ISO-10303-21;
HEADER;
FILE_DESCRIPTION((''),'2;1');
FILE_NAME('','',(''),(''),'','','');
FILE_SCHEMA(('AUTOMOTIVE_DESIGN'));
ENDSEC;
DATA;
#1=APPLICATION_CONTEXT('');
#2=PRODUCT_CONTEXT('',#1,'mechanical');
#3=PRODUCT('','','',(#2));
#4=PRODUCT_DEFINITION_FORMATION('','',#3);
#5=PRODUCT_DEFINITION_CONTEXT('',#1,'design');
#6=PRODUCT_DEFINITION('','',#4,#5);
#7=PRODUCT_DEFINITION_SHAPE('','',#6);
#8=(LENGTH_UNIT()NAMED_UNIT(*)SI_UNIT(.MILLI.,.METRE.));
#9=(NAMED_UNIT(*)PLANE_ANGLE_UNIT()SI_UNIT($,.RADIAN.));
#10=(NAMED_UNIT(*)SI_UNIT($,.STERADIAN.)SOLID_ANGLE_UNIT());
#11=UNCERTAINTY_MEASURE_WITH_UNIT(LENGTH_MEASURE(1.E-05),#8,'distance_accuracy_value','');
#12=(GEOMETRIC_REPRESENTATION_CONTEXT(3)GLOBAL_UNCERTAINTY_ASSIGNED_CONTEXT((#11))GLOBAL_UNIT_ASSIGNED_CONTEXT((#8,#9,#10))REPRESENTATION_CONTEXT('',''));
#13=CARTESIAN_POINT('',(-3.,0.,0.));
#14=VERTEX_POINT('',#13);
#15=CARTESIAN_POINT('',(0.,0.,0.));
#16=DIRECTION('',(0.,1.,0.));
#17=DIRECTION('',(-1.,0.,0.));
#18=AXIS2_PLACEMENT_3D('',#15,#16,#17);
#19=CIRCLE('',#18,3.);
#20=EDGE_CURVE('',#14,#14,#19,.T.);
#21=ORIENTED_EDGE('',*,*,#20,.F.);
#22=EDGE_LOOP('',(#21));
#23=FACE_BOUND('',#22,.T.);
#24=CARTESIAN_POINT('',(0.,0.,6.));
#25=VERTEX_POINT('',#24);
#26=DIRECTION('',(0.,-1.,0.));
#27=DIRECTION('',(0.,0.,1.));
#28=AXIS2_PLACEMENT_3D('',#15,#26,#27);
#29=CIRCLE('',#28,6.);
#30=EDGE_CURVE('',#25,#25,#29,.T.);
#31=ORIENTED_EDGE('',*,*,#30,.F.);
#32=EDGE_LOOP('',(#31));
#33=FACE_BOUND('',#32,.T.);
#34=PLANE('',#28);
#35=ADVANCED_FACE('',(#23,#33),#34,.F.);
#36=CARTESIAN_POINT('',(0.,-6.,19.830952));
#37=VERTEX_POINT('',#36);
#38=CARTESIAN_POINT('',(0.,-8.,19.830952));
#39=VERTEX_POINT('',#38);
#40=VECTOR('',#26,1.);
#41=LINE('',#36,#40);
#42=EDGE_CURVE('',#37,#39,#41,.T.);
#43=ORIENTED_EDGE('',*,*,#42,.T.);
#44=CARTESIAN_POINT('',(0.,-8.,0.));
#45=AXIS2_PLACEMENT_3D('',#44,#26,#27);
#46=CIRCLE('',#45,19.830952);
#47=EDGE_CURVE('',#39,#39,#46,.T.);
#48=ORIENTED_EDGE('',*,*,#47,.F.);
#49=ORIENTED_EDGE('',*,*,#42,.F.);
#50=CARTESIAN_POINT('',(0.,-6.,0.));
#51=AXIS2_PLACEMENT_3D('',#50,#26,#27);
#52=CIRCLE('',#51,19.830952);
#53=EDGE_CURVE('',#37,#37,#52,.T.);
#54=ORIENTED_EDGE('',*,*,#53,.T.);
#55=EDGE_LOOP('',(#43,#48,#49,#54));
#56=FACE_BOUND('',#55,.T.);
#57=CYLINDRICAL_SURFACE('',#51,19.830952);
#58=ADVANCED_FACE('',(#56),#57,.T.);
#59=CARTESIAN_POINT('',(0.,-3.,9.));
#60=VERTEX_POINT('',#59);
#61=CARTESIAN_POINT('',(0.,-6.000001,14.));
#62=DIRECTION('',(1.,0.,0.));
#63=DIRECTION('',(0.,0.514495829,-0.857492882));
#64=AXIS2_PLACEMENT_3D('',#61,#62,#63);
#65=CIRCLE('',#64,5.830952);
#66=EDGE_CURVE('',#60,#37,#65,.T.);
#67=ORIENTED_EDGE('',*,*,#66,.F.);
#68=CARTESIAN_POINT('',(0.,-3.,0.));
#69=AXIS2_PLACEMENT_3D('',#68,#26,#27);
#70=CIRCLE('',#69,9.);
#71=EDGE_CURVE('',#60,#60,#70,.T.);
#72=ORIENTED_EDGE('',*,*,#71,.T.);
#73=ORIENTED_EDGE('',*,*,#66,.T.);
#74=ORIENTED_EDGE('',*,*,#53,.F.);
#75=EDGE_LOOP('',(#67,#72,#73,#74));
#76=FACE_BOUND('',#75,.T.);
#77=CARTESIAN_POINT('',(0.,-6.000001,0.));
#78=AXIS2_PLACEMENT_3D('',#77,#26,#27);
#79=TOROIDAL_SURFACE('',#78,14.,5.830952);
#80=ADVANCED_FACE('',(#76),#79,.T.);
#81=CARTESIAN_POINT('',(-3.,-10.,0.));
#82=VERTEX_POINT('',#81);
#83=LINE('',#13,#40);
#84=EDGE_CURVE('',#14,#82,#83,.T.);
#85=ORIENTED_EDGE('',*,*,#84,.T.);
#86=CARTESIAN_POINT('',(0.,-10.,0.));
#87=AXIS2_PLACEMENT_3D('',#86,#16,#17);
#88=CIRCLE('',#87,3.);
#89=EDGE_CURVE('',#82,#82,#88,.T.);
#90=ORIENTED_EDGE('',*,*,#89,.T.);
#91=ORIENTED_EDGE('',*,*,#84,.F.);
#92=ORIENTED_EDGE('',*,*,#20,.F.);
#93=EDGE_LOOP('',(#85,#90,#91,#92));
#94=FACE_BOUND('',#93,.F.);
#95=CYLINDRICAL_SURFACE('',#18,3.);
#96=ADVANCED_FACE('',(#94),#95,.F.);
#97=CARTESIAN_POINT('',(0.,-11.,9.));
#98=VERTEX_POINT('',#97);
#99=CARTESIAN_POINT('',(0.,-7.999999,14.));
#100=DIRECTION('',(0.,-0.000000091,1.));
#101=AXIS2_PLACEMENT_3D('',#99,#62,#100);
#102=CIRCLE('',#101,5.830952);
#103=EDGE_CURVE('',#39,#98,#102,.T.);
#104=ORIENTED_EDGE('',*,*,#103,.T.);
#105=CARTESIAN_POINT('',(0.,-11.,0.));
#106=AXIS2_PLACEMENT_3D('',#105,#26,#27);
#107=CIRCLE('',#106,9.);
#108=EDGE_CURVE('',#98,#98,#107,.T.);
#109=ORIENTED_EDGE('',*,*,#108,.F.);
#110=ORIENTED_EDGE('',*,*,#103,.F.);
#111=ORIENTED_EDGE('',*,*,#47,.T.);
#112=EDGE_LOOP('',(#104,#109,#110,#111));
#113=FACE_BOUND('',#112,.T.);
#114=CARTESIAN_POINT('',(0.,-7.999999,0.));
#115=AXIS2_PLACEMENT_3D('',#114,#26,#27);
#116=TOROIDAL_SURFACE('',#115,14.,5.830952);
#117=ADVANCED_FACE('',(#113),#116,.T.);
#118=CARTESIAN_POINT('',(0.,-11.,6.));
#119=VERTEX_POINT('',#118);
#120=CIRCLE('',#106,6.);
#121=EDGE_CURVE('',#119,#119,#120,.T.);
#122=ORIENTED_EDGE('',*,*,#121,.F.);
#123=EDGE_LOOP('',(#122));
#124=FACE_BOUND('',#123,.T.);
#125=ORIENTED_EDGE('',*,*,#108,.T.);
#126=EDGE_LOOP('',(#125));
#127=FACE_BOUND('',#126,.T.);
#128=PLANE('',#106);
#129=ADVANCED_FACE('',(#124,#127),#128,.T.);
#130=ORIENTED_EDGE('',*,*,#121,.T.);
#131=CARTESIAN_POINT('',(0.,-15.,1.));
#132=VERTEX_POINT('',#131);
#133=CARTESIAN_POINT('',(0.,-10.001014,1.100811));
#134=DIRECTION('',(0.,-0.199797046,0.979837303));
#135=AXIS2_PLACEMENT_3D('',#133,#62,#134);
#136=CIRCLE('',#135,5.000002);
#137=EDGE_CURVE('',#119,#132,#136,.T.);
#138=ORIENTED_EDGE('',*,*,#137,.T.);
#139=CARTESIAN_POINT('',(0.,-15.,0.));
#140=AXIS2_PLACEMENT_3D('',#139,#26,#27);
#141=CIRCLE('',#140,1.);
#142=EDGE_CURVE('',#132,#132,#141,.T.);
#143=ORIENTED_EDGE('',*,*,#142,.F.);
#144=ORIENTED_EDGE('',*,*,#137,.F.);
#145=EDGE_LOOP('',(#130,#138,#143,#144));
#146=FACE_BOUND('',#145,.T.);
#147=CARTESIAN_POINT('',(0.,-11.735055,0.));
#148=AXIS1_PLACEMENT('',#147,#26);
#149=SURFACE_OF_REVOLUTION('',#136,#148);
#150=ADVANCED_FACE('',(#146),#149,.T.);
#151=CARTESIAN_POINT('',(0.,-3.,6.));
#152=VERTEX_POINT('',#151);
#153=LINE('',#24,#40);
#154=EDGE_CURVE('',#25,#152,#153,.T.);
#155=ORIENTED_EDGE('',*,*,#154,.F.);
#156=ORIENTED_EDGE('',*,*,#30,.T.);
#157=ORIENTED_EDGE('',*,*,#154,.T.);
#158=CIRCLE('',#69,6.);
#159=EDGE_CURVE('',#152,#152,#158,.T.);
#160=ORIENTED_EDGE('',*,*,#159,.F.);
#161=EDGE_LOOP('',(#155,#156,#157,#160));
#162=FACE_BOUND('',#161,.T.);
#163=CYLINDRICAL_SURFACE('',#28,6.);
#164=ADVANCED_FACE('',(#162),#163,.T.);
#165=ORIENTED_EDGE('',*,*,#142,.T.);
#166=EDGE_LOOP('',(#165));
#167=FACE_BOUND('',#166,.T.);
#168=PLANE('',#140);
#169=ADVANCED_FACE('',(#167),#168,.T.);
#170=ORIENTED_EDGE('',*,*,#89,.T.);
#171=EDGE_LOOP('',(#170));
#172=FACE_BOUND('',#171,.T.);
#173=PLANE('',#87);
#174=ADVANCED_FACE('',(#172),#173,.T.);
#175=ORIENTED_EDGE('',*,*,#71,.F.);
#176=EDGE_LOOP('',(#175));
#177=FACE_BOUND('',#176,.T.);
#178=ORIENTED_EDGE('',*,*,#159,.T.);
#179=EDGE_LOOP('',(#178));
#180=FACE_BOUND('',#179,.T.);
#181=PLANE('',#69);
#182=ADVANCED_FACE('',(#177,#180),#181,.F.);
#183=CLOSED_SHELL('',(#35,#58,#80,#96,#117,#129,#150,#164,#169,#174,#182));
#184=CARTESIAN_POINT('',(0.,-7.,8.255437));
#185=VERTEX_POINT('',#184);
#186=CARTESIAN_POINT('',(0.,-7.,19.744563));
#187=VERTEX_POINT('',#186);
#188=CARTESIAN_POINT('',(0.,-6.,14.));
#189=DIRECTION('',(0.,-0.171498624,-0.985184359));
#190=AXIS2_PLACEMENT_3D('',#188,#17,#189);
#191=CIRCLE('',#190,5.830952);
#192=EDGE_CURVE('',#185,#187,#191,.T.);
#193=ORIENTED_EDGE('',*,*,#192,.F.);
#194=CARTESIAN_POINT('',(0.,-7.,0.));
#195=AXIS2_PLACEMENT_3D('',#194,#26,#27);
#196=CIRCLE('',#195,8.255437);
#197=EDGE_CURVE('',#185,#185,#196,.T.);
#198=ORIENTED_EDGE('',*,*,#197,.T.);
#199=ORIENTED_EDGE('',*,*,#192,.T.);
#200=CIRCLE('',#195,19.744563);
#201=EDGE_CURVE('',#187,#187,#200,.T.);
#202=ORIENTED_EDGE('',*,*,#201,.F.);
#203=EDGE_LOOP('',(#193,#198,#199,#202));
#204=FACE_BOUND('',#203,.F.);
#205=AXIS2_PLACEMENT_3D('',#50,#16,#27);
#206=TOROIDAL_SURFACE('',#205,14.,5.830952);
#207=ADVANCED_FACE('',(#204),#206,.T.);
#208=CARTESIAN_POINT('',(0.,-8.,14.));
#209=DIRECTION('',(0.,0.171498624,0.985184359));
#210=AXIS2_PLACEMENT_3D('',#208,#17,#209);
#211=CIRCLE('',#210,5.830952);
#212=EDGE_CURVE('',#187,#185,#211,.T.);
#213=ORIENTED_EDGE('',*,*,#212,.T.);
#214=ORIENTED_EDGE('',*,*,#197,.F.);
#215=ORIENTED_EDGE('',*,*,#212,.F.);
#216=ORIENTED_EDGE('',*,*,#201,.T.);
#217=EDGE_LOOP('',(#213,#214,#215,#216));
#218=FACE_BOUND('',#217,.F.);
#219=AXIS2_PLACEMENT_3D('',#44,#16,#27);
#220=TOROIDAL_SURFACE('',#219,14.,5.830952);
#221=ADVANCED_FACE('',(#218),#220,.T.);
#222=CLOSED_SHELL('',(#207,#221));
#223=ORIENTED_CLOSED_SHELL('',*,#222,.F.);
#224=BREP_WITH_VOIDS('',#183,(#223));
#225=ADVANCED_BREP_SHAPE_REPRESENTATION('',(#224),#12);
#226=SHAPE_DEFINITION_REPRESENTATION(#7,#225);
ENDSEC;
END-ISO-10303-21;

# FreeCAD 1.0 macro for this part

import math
import FreeCAD as App
import Part
import Sketcher
from FreeCAD import Vector
Q = App.Units.Quantity

doc = App.newDocument("Part")
body = doc.addObject("PartDesign::Body", "Body")

# Sketch on YZ plane
sketch1 = body.newObject("Sketcher::SketchObject", "Sketch")
sketch1.AttachmentSupport = (doc.getObject("YZ_Plane"), [""])
sketch1.MapMode = "FlatFace"
sketch1.addGeometry([
    Part.LineSegment(Vector(-15, 0, 0), Vector(0, 0, 0)),  # 0
    Part.LineSegment(Vector(0, 0, 0), Vector(0, 6, 0)),  # 1
    Part.LineSegment(Vector(0, 6, 0), Vector(-3, 6, 0)),  # 2
    Part.LineSegment(Vector(-3, 6, 0), Vector(-3, 9, 0)),  # 3
    Part.ArcOfCircle(Part.Circle(Vector(-6, 14, 0), Vector(0, 0, 1), 5.8), math.radians(-59), math.radians(90)),  # 4
    Part.LineSegment(Vector(-6, 19.8, 0), Vector(-8, 19.8, 0)),  # 5
    Part.ArcOfCircle(Part.Circle(Vector(-8, 14, 0), Vector(0, 0, 1), 5.8), math.radians(90), math.radians(239)),  # 6
    Part.LineSegment(Vector(-11, 9, 0), Vector(-11, 6, 0)),  # 7
    Part.ArcOfCircle(Part.Circle(Vector(-10, 1.1, 0), Vector(0, 0, 1), 5), math.radians(102), math.radians(181)),  # 8
    Part.LineSegment(Vector(-15, 1, 0), Vector(-15, 0, 0)),  # 9
    Part.ArcOfCircle(Part.Circle(Vector(-6, 14, 0), Vector(0, 0, 1), 5.8), math.radians(100), math.radians(260)),  # 10
    Part.ArcOfCircle(Part.Circle(Vector(-8, 14, 0), Vector(0, 0, 1), 5.8), math.radians(-80), math.radians(80)),  # 11
], False)
sketch1.addConstraint([
    Sketcher.Constraint("Coincident", 0, 2, 1, 1),
    Sketcher.Constraint("Coincident", 1, 2, 2, 1),
    Sketcher.Constraint("Coincident", 2, 2, 3, 1),
    Sketcher.Constraint("Coincident", 3, 2, 4, 1),
    Sketcher.Constraint("Tangent", 4, 2, 5, 1),
    Sketcher.Constraint("Tangent", 5, 2, 6, 1),
    Sketcher.Constraint("Coincident", 6, 2, 7, 1),
    Sketcher.Constraint("Coincident", 7, 2, 8, 1),
    Sketcher.Constraint("Coincident", 8, 2, 9, 1),
    Sketcher.Constraint("Coincident", 9, 2, 0, 1),
    Sketcher.Constraint("Coincident", 10, 1, 11, 2),
    Sketcher.Constraint("Coincident", 11, 1, 10, 2),
    Sketcher.Constraint("Horizontal", 0),
    Sketcher.Constraint("Vertical", 1),
    Sketcher.Constraint("Horizontal", 2),
    Sketcher.Constraint("Vertical", 3),
    Sketcher.Constraint("Horizontal", 5),
    Sketcher.Constraint("Vertical", 7),
    Sketcher.Constraint("Vertical", 9),
    Sketcher.Constraint("Coincident", 0, 2, -1, 1),
    Sketcher.Constraint("Coincident", 10, 3, 4, 3),
    Sketcher.Constraint("Coincident", 11, 3, 6, 3),
    Sketcher.Constraint("Equal", 4, 6),
    Sketcher.Constraint("Equal", 6, 10),
    Sketcher.Constraint("Equal", 10, 11),
    Sketcher.Constraint("Horizontal", 3, 2, 6, 2),
    Sketcher.Constraint("Horizontal", 2, 2, 7, 2),
    Sketcher.Constraint("Equal", 2, 3),
    Sketcher.Constraint("DistanceX", 0, 1, 0, 2, Q("15 mm")),
    Sketcher.Constraint("DistanceX", 2, 2, 2, 1, Q("3 mm")),
    Sketcher.Constraint("DistanceX", 5, 2, 5, 1, Q("2 mm")),
    Sketcher.Constraint("DistanceY", 1, 1, 1, 2, Q("6 mm")),
    Sketcher.Constraint("DistanceY", 9, 2, 9, 1, Q("1 mm")),
    Sketcher.Constraint("DistanceX", 4, 3, -1, 1, Q("6.000001 mm")),
    Sketcher.Constraint("DistanceY", -1, 1, 4, 3, Q("14 mm")),
    Sketcher.Constraint("Radius", 8, Q("5.000002 mm")),
])
revolution = body.newObject("PartDesign::Revolution", "Revolution")
revolution.Profile = sketch1
revolution.ReferenceAxis = (sketch1, ["H_Axis"])
revolution.Angle = 360

# Sketch on XZ plane
sketch2 = body.newObject("Sketcher::SketchObject", "Sketch001")
sketch2.AttachmentSupport = (doc.getObject("XZ_Plane"), [""])
sketch2.MapMode = "FlatFace"
sketch2.addGeometry(Part.Circle(Vector(0, 0, 0), Vector(0, 0, 1), 3), False)
sketch2.addConstraint([
    Sketcher.Constraint("Coincident", 0, 3, -1, 1),
    Sketcher.Constraint("Diameter", 0, Q("6 mm")),
])
pocket1 = body.newObject("PartDesign::Pocket", "Pocket")
pocket1.Profile = sketch2
pocket1.Length = 10
pocket1.Reversed = True

doc.recompute()
